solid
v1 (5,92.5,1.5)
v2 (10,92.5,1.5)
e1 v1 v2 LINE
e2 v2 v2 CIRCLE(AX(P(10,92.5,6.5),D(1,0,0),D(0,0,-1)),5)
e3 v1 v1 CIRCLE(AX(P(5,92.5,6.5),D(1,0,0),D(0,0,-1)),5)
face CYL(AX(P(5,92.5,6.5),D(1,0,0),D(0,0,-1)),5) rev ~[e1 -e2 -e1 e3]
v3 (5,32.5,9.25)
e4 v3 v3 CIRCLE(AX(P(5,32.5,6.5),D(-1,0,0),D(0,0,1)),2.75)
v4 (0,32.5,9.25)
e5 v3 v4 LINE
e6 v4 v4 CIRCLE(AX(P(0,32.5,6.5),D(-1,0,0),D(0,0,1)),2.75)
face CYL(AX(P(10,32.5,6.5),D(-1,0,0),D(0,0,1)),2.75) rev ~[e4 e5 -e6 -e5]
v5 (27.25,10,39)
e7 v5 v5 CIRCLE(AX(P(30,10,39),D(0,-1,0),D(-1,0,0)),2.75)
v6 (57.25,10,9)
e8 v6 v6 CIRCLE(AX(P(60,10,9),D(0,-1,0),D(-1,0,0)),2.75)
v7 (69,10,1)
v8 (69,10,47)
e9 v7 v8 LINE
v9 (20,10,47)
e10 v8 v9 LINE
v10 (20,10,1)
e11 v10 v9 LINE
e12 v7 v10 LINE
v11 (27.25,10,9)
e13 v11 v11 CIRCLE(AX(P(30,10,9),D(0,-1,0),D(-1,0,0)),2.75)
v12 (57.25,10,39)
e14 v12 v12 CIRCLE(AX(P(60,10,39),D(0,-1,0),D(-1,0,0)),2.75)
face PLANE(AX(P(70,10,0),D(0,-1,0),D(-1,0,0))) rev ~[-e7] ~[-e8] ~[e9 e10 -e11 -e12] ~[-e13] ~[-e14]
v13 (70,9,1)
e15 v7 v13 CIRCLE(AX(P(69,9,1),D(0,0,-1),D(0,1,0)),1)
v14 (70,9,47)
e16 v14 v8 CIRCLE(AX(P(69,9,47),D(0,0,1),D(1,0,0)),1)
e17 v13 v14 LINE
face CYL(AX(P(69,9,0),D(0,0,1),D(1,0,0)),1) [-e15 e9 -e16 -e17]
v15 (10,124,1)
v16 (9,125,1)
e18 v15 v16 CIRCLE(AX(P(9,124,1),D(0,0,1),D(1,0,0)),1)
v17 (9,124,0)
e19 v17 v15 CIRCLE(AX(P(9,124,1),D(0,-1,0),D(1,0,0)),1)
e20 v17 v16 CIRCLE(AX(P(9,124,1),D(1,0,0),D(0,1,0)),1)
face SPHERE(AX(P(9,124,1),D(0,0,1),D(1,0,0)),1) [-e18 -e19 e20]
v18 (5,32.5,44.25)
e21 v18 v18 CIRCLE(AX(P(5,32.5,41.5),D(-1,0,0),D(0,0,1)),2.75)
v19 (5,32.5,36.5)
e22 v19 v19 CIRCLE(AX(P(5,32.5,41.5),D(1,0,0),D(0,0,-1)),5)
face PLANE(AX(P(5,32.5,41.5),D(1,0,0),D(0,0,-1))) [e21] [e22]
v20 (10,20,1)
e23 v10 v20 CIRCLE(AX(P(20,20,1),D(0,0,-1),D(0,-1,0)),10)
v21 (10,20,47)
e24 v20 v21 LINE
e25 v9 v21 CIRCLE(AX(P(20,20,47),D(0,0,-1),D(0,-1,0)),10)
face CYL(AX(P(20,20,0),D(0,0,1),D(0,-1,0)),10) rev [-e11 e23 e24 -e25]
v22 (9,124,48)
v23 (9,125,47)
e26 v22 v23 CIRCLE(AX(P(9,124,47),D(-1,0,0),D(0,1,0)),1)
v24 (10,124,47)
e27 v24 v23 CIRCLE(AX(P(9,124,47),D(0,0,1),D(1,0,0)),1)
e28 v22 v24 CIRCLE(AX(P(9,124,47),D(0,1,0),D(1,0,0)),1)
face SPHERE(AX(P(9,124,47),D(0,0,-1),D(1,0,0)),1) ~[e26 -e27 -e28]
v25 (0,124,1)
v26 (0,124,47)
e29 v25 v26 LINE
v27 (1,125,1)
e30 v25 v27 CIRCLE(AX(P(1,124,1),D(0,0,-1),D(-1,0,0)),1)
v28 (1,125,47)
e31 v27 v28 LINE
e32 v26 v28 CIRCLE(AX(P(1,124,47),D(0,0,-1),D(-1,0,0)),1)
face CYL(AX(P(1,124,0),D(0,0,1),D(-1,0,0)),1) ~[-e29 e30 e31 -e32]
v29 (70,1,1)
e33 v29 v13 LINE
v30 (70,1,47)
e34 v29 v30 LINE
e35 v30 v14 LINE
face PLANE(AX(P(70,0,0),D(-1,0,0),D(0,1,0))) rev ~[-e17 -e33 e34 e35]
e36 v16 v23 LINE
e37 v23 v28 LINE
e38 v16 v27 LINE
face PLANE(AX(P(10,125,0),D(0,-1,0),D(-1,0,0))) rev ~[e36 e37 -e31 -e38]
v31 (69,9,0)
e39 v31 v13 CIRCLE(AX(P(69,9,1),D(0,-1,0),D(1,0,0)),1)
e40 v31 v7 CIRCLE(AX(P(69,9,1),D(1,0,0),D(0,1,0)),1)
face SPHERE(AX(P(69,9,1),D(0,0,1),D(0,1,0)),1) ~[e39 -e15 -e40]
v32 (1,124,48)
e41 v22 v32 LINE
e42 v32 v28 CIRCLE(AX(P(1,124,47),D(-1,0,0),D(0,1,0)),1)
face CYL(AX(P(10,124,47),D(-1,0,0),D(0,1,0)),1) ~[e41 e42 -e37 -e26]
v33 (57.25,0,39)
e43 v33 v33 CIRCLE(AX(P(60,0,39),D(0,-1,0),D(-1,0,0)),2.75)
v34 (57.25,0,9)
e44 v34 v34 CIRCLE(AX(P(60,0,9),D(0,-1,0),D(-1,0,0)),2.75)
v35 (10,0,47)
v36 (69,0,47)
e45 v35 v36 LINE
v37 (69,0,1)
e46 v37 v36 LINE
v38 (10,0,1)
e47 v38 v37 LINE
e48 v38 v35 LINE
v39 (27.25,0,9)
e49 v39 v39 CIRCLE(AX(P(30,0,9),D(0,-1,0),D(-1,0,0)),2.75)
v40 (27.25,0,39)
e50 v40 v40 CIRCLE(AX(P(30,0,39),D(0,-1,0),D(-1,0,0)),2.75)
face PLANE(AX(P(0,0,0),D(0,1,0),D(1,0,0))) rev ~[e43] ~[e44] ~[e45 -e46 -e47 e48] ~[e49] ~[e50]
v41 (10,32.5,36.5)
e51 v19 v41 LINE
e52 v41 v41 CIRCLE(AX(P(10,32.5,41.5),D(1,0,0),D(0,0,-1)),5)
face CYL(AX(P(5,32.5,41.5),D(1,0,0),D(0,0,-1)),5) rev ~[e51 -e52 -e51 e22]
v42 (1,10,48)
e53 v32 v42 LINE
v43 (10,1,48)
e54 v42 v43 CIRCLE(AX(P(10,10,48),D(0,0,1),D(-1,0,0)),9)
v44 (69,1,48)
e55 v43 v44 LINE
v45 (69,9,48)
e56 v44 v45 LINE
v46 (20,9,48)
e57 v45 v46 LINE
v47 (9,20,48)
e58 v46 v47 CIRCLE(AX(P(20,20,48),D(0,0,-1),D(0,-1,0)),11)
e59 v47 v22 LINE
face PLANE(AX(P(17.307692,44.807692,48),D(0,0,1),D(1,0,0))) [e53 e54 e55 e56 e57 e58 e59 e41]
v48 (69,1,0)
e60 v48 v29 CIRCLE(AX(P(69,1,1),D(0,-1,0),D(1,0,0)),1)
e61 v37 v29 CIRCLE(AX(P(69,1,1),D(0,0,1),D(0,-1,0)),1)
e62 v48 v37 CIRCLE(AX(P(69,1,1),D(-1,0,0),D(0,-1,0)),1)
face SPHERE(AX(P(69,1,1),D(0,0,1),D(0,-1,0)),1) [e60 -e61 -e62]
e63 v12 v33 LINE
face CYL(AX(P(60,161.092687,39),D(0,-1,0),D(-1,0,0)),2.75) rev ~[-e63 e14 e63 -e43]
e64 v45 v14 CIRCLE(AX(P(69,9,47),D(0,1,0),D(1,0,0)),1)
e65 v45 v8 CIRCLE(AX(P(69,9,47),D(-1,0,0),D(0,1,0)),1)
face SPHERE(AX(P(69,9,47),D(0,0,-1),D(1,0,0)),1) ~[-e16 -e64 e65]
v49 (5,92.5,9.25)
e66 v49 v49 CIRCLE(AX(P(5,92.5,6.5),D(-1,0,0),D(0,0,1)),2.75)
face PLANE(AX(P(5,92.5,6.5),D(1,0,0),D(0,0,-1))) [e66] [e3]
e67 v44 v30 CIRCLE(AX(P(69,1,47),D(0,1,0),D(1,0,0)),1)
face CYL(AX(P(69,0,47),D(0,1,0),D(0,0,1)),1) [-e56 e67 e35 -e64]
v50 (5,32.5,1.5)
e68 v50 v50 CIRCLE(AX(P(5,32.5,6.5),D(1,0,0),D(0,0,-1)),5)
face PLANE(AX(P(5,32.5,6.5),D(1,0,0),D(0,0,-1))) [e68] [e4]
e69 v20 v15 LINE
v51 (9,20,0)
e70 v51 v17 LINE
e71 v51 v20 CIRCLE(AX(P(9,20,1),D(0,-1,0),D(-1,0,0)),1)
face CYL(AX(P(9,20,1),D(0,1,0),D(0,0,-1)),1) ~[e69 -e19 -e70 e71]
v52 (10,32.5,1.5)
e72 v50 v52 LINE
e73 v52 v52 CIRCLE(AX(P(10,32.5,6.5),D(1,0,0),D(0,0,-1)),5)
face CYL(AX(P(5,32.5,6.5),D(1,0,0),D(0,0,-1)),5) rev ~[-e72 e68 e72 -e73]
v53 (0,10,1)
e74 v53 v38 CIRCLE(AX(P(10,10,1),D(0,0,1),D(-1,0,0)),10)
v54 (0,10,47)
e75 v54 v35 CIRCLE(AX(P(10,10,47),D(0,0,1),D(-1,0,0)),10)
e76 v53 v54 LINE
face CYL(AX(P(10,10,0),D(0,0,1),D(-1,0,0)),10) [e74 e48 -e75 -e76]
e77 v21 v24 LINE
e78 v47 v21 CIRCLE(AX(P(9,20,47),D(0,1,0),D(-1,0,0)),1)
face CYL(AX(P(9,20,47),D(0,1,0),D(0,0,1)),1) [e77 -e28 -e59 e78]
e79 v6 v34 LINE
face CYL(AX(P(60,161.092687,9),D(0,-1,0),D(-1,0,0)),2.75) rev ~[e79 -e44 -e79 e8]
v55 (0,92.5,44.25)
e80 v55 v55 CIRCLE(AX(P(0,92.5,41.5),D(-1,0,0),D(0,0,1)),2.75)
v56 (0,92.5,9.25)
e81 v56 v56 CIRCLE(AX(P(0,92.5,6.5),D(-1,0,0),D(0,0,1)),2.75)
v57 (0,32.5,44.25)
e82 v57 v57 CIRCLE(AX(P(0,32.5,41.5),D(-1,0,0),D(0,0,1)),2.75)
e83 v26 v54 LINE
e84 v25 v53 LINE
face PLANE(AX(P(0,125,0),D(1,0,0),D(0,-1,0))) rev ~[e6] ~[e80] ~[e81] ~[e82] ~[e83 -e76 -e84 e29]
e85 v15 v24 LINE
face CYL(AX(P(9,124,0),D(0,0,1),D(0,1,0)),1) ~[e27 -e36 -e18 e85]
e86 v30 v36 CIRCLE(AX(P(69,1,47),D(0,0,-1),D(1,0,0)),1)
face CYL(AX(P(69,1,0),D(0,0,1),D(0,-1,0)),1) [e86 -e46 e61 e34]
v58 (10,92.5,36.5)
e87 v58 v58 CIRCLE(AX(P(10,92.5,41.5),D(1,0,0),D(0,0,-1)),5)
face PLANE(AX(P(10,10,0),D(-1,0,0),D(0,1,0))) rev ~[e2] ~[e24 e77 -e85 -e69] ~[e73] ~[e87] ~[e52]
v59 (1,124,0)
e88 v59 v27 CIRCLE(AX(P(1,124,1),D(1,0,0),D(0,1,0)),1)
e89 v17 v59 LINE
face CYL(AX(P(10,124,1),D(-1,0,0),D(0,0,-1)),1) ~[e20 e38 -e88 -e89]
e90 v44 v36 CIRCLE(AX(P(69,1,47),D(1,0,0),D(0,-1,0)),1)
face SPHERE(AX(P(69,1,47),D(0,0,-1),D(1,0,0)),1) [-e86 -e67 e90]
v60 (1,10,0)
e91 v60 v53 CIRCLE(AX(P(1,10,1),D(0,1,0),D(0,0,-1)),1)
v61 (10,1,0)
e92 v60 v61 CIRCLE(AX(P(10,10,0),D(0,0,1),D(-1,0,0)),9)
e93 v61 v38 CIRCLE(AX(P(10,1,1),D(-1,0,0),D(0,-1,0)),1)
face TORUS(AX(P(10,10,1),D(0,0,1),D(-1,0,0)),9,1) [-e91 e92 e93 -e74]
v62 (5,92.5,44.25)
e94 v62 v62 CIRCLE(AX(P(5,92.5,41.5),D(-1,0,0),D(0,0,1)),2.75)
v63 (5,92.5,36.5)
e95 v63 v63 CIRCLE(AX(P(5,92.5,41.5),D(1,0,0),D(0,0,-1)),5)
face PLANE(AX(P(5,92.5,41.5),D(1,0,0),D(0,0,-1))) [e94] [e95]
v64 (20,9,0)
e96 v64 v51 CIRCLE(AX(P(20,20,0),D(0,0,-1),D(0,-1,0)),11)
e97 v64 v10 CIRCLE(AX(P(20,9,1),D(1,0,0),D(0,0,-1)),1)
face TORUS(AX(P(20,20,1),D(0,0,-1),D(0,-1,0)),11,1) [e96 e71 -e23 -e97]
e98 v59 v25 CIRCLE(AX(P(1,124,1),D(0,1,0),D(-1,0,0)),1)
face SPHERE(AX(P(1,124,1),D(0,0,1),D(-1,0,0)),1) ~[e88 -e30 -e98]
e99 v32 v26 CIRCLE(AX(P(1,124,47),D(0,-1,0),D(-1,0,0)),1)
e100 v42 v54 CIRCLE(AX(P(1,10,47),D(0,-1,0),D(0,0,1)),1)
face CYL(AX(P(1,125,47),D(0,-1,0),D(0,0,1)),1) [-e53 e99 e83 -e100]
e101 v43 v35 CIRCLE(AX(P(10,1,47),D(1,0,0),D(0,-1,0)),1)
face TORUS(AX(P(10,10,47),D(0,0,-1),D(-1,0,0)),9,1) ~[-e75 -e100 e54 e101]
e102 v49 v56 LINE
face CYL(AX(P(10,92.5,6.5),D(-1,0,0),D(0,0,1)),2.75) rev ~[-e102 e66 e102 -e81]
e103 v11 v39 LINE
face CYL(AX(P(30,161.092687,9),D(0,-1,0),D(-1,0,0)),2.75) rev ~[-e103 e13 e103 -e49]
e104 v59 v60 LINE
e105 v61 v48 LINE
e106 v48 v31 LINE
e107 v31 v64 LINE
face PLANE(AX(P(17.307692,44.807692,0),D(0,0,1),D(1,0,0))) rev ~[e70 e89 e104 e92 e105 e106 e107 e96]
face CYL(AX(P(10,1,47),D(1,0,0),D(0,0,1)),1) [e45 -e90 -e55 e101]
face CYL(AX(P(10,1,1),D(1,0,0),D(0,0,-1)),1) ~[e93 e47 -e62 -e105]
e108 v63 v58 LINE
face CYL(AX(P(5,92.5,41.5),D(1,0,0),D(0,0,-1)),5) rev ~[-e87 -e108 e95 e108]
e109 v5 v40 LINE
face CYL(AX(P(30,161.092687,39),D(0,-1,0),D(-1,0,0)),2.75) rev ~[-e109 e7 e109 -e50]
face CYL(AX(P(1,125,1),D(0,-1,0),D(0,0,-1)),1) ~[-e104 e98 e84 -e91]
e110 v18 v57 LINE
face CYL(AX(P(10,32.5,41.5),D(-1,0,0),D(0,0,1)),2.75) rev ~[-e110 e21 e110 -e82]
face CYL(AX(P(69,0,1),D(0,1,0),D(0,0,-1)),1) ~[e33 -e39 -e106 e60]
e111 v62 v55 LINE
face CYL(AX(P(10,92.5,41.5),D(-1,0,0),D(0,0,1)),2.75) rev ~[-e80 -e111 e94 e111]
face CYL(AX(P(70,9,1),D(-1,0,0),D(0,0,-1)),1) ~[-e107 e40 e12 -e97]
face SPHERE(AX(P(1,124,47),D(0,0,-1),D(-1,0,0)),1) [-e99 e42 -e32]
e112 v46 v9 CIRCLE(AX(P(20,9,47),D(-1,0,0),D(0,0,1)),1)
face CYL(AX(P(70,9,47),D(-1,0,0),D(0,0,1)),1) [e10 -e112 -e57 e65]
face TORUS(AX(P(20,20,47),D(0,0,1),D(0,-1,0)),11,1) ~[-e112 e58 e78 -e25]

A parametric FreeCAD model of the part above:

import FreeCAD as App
import Part
import Sketcher
Q = App.Units.Quantity


def edges_at(feature, points):
    """Names of the edges that pass closest to the given points."""
    edges = feature.Shape.Edges
    near = lambda p: min(range(len(edges)), key=lambda i: edges[i].distToShape(Part.Vertex(*p))[0])
    return sorted({f"Edge{near(p) + 1}" for p in points})

doc = App.newDocument("Part")
body = doc.addObject("PartDesign::Body", "Body")

# Sketch on XY plane
sketch1 = body.newObject("Sketcher::SketchObject", "Sketch")
sketch1.AttachmentSupport = (doc.getObject("XY_Plane"), [""])
sketch1.MapMode = "FlatFace"
sketch1.addGeometry([
    Part.LineSegment(App.Vector(0, 125, 0), App.Vector(0, 0, 0)),  # 0
    Part.LineSegment(App.Vector(0, 0, 0), App.Vector(70, 0, 0)),  # 1
    Part.LineSegment(App.Vector(70, 0, 0), App.Vector(70, 10, 0)),  # 2
    Part.LineSegment(App.Vector(70, 10, 0), App.Vector(10, 10, 0)),  # 3
    Part.LineSegment(App.Vector(10, 10, 0), App.Vector(10, 125, 0)),  # 4
    Part.LineSegment(App.Vector(10, 125, 0), App.Vector(0, 125, 0)),  # 5
], False)
sketch1.addConstraint([
    Sketcher.Constraint("Coincident", 0, 2, 1, 1),
    Sketcher.Constraint("Coincident", 1, 2, 2, 1),
    Sketcher.Constraint("Coincident", 2, 2, 3, 1),
    Sketcher.Constraint("Coincident", 3, 2, 4, 1),
    Sketcher.Constraint("Coincident", 4, 2, 5, 1),
    Sketcher.Constraint("Coincident", 5, 2, 0, 1),
    Sketcher.Constraint("Vertical", 0),
    Sketcher.Constraint("Horizontal", 1),
    Sketcher.Constraint("Vertical", 2),
    Sketcher.Constraint("Horizontal", 3),
    Sketcher.Constraint("Vertical", 4),
    Sketcher.Constraint("Horizontal", 5),
    Sketcher.Constraint("Coincident", 0, 2, -1, 1),
    Sketcher.Constraint("Equal", 5, 2),
    Sketcher.Constraint("DistanceX", 1, 1, 1, 2, Q("70 mm")),
    Sketcher.Constraint("DistanceX", 3, 2, 3, 1, Q("60 mm")),
    Sketcher.Constraint("DistanceY", 0, 2, 0, 1, Q("125 mm")),
])
pad1 = body.newObject("PartDesign::Pad", "Pad")
pad1.Profile = sketch1
pad1.Length = 48
doc.recompute()

fillet = body.newObject("PartDesign::Fillet", "Fillet")
fillet.Base = (pad1, edges_at(pad1, [(10, 10, 24), (0, 0, 24)]))
fillet.Radius = 10

# Sketch on YZ plane
sketch2 = body.newObject("Sketcher::SketchObject", "Sketch001")
sketch2.AttachmentSupport = (doc.getObject("YZ_Plane"), [""])
sketch2.MapMode = "FlatFace"
sketch2.AttachmentOffset = App.Placement(App.Vector(0, 0, 10), App.Rotation())
sketch2.addGeometry([
    Part.Circle(App.Vector(92.5, 41.5, 0), App.Vector(0, 0, 1), 2.8),
    Part.Circle(App.Vector(32.5, 6.5, 0), App.Vector(0, 0, 1), 2.8),
    Part.Circle(App.Vector(32.5, 41.5, 0), App.Vector(0, 0, 1), 2.8),
    Part.Circle(App.Vector(92.5, 6.5, 0), App.Vector(0, 0, 1), 2.8),
], False)
sketch2.addConstraint([
    Sketcher.Constraint("Equal", 0, 1),
    Sketcher.Constraint("Equal", 1, 2),
    Sketcher.Constraint("Equal", 2, 3),
    Sketcher.Constraint("Horizontal", 0, 3, 2, 3),
    Sketcher.Constraint("Horizontal", 1, 3, 3, 3),
    Sketcher.Constraint("Vertical", 1, 3, 2, 3),
    Sketcher.Constraint("Vertical", 0, 3, 3, 3),
    Sketcher.Constraint("Diameter", 0, Q("5.5 mm")),
    Sketcher.Constraint("DistanceX", 1, 3, 0, 3, Q("60 mm")),
    Sketcher.Constraint("DistanceY", 1, 3, 0, 3, Q("35 mm")),
    Sketcher.Constraint("DistanceX", -1, 1, 0, 3, Q("92.5 mm")),
    Sketcher.Constraint("DistanceY", -1, 1, 0, 3, Q("41.5 mm")),
])
doc.recompute()
hole = body.newObject("PartDesign::Hole", "Hole")
hole.Profile = sketch2
hole.ThreadType = "None"
hole.Diameter = 5.5
hole.DepthType = "ThroughAll"
hole.HoleCutType = "Counterbore"
hole.HoleCutDiameter = 10
hole.HoleCutDepth = 5

# Sketch on XZ plane
sketch3 = body.newObject("Sketcher::SketchObject", "Sketch002")
sketch3.AttachmentSupport = (doc.getObject("XZ_Plane"), [""])
sketch3.MapMode = "FlatFace"
sketch3.AttachmentOffset = App.Placement(App.Vector(0, 0, -10), App.Rotation())
sketch3.addGeometry([
    Part.Circle(App.Vector(30, 9, 0), App.Vector(0, 0, 1), 2.8),
    Part.Circle(App.Vector(60, 39, 0), App.Vector(0, 0, 1), 2.8),
    Part.Circle(App.Vector(30, 39, 0), App.Vector(0, 0, 1), 2.8),
    Part.Circle(App.Vector(60, 9, 0), App.Vector(0, 0, 1), 2.8),
], False)
sketch3.addConstraint([
    Sketcher.Constraint("Equal", 0, 1),
    Sketcher.Constraint("Equal", 1, 2),
    Sketcher.Constraint("Equal", 2, 3),
    Sketcher.Constraint("Horizontal", 1, 3, 2, 3),
    Sketcher.Constraint("Horizontal", 0, 3, 3, 3),
    Sketcher.Constraint("Vertical", 0, 3, 2, 3),
    Sketcher.Constraint("Vertical", 1, 3, 3, 3),
    Sketcher.Constraint("Diameter", 0, Q("5.5 mm")),
    Sketcher.Constraint("DistanceX", -1, 1, 0, 3, Q("30 mm")),
    Sketcher.Constraint("DistanceY", -1, 1, 0, 3, Q("9 mm")),
    Sketcher.Constraint("DistanceX", -1, 1, 1, 3, Q("60 mm")),
    Sketcher.Constraint("DistanceY", -1, 1, 1, 3, Q("39 mm")),
])
doc.recompute()
hole2 = body.newObject("PartDesign::Hole", "Hole001")
hole2.Profile = sketch3
hole2.ThreadType = "None"
hole2.Diameter = 5.5
hole2.DepthType = "ThroughAll"
hole2.Reversed = True
doc.recompute()

fillet2 = body.newObject("PartDesign::Fillet", "Fillet001")
fillet2.Base = (hole2, edges_at(hole2, [
    (10, 125, 24),
    (70, 10, 24),
    (70, 0, 24),
    (0, 125, 24),
    (70, 5, 48),
    (45, 10, 48),
    (40, 0, 0),
    (40, 0, 48),
    (10, 72.5, 0),
    (2.929, 2.929, 0),
    (10, 72.5, 48),
    (2.929, 2.929, 48),
    (12.929, 12.929, 0),
    (12.929, 12.929, 48),
    (5, 125, 48),
    (45, 10, 0),
    (70, 5, 0),
    (0, 67.5, 48),
    (0, 67.5, 0),
    (5, 125, 0),
]))
fillet2.Radius = 1

doc.recompute()
